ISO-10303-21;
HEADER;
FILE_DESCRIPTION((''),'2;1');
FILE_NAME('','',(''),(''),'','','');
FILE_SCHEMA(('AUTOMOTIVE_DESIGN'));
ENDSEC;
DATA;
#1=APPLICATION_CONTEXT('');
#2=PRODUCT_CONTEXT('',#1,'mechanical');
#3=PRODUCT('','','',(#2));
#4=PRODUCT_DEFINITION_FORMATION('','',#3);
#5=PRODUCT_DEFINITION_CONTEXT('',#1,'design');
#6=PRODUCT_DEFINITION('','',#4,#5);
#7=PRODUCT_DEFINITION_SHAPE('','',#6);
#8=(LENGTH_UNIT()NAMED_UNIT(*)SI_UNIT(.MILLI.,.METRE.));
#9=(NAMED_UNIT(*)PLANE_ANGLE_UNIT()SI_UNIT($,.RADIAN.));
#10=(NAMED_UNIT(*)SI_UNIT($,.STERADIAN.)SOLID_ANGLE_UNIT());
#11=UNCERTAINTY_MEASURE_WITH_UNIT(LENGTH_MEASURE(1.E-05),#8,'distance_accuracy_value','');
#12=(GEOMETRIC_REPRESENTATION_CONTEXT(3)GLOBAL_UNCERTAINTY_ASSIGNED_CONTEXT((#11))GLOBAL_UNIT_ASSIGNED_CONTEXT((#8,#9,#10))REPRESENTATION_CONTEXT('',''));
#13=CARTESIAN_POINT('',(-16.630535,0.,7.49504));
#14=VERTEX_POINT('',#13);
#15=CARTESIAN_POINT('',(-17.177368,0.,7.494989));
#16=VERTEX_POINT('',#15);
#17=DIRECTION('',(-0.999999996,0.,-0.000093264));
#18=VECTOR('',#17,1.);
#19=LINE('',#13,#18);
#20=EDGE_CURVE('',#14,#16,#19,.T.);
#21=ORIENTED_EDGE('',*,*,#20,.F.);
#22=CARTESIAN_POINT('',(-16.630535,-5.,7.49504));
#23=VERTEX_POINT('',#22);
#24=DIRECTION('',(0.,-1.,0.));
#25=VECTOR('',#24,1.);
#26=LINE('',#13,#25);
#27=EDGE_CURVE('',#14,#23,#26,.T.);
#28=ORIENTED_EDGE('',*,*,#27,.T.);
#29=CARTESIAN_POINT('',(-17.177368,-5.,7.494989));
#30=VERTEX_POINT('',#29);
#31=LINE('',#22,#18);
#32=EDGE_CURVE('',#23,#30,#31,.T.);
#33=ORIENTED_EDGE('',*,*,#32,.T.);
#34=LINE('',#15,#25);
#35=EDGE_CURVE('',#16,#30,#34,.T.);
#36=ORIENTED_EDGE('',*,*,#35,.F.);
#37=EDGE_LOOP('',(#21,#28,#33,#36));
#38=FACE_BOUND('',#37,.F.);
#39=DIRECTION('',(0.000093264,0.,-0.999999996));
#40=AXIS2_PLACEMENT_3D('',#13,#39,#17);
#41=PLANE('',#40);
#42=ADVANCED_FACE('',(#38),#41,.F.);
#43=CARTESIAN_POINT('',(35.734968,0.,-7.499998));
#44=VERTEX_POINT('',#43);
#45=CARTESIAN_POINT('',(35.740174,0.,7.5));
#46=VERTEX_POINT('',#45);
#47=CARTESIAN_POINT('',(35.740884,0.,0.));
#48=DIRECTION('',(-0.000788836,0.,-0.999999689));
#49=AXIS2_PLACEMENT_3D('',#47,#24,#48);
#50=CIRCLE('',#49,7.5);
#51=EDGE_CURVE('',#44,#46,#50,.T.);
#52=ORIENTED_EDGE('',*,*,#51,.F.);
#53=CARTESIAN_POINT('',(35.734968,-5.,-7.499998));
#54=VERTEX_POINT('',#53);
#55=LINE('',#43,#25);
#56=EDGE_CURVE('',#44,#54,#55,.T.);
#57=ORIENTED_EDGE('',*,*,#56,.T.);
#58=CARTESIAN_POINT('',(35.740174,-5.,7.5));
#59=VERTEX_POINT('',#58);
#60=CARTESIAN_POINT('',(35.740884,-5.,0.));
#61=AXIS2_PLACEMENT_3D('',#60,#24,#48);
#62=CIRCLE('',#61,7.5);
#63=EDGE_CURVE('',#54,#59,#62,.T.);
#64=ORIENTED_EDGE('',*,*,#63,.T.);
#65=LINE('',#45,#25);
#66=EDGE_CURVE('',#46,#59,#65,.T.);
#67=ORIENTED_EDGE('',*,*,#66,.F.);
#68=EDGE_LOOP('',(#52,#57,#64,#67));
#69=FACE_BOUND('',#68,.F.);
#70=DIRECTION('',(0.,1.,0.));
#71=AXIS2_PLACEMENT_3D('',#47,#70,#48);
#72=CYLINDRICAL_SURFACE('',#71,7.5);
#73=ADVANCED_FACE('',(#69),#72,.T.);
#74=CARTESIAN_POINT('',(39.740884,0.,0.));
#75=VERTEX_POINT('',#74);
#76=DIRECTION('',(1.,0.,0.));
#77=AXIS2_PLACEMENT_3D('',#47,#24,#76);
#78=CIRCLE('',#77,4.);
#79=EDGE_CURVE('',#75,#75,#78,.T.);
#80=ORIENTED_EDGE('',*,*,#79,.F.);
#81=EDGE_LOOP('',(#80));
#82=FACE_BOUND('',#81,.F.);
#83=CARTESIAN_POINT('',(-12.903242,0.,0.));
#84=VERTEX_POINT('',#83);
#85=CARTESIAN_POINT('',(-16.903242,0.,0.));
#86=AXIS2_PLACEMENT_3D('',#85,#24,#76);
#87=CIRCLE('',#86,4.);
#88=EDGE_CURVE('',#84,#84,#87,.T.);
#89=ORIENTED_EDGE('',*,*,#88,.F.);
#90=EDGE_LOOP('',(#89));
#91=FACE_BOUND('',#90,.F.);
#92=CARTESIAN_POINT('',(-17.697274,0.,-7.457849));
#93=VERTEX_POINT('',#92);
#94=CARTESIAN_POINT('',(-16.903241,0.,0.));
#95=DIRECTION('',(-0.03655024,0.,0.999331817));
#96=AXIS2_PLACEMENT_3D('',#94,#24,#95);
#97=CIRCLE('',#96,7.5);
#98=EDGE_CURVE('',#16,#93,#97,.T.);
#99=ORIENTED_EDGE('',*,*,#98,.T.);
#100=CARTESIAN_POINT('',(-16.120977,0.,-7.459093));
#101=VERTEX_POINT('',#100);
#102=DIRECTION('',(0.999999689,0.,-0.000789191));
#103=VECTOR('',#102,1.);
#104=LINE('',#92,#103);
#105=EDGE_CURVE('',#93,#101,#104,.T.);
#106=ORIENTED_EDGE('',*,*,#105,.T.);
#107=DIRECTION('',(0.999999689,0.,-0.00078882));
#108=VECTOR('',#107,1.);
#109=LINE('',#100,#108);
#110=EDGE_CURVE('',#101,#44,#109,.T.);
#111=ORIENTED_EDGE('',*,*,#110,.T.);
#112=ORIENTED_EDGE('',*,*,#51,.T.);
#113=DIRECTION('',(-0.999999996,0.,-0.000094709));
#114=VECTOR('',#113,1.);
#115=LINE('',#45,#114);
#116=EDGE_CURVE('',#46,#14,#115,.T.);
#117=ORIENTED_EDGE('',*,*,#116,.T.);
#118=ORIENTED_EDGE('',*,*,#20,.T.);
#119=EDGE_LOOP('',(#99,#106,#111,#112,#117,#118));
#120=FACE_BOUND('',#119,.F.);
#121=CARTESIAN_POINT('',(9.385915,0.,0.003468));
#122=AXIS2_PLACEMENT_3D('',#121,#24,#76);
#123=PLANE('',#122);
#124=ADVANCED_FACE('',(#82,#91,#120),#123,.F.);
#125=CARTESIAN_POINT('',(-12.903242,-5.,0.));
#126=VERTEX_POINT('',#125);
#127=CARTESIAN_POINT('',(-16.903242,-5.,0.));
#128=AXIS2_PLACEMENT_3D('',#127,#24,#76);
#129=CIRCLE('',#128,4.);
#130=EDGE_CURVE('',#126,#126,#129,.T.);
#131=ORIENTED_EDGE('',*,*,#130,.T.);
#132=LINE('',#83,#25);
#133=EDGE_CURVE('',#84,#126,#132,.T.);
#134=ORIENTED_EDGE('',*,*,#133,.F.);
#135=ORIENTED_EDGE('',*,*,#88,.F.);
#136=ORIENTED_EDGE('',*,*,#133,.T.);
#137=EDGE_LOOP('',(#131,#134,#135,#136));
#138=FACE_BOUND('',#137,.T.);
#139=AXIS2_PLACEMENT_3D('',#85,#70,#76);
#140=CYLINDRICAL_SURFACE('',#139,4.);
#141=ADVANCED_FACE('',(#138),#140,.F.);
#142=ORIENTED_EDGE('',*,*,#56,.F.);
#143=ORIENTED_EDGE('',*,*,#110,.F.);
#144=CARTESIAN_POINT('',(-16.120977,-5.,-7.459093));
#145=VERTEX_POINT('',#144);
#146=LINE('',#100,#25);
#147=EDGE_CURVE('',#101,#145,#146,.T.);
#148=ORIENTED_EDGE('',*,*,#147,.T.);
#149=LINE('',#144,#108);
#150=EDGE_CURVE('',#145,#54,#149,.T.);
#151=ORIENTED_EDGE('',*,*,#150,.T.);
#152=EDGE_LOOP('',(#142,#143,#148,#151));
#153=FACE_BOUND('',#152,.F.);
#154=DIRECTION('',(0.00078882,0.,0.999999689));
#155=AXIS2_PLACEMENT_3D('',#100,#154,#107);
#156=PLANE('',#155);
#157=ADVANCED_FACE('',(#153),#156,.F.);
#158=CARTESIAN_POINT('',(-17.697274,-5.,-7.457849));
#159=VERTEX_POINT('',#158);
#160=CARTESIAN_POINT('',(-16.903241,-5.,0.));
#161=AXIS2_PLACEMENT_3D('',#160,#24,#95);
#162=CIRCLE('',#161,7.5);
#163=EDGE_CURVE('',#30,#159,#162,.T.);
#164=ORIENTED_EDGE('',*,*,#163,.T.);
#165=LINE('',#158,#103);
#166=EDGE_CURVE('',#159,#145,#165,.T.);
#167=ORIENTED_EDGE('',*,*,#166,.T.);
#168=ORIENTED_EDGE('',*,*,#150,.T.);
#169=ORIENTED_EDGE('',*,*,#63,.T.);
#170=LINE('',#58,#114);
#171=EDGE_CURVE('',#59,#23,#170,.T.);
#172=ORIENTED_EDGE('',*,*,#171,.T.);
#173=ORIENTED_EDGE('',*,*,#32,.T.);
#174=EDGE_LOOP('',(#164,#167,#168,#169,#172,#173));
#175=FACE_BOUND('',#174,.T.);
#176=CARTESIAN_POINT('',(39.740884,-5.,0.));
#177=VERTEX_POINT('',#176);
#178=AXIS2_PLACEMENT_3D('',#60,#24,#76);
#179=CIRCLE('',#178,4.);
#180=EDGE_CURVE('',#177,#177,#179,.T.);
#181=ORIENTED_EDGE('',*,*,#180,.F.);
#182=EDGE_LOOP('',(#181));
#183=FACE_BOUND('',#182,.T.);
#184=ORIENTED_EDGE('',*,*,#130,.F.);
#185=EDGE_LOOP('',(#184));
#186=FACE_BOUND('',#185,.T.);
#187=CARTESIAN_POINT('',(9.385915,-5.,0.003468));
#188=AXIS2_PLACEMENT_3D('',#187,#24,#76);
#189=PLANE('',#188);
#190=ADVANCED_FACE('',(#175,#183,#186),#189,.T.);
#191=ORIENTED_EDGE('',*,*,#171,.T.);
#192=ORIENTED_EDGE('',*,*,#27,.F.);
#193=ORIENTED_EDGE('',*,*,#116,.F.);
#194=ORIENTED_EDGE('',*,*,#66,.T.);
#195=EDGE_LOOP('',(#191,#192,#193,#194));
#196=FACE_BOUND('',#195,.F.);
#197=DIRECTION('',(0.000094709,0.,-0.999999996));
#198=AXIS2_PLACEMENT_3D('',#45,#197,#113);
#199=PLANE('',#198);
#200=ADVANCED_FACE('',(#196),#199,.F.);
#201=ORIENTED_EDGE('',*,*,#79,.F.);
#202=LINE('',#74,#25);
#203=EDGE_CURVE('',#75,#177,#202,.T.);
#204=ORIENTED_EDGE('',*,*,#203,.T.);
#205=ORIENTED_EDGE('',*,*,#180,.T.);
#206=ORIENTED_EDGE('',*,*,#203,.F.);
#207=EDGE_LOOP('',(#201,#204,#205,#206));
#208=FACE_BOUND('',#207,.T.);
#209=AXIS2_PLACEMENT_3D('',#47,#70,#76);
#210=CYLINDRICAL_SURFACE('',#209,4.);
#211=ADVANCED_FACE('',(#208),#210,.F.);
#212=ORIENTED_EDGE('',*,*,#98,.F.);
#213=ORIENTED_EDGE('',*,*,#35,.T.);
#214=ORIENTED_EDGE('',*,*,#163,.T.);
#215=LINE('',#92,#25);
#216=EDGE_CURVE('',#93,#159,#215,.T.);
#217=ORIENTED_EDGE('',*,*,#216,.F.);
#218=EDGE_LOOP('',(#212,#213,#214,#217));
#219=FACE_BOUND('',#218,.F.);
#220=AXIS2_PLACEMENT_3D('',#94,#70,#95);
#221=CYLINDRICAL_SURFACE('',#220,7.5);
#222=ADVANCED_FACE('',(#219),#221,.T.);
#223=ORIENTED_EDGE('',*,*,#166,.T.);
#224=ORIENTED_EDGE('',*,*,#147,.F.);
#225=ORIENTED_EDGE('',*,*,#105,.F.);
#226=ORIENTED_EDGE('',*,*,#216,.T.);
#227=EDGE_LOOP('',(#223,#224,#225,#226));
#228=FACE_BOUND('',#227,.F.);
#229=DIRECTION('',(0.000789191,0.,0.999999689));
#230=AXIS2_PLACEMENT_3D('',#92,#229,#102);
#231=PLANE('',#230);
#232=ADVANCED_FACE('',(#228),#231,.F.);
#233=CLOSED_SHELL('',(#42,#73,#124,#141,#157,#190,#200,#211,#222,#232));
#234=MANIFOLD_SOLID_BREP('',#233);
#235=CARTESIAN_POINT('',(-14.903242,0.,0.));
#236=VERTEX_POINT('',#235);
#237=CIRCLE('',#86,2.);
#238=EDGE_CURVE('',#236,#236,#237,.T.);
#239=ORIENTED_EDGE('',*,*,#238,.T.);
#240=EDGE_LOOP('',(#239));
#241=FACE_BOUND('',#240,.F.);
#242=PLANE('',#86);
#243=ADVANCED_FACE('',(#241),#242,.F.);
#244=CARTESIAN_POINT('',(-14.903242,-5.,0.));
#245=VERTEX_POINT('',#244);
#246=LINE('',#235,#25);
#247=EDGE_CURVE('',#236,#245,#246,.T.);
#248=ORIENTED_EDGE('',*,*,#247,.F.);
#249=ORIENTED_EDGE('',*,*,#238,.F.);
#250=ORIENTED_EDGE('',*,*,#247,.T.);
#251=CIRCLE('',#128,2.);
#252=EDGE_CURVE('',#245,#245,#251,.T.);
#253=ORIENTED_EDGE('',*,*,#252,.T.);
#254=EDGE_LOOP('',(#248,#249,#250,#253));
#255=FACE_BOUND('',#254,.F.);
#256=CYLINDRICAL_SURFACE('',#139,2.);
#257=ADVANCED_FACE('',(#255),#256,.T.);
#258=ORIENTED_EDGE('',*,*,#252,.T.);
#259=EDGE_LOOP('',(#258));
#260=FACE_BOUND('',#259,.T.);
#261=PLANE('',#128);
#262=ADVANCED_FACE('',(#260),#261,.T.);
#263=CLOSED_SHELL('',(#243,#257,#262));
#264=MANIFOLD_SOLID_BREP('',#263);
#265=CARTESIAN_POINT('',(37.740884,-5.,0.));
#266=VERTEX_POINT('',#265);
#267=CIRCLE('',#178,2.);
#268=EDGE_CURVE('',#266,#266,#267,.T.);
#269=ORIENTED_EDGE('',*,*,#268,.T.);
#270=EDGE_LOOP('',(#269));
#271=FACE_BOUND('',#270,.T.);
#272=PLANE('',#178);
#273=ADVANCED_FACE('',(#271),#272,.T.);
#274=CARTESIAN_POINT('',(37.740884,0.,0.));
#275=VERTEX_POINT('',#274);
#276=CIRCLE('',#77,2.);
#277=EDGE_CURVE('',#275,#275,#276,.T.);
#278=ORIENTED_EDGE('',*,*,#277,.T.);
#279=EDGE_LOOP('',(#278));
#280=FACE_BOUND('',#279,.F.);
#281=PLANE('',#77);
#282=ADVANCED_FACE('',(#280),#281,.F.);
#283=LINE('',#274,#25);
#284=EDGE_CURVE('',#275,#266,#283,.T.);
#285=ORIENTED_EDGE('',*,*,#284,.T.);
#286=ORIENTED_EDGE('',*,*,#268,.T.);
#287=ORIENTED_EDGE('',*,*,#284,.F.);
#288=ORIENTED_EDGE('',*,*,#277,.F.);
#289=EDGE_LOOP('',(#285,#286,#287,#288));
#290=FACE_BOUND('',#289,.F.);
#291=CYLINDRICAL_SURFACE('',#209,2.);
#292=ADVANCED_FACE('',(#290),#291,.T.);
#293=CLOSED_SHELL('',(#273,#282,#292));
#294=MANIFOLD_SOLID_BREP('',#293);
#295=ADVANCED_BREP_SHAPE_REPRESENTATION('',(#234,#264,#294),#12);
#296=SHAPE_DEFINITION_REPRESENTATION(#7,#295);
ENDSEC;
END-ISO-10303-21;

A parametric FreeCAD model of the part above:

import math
import FreeCAD as App
import Part
import Sketcher
Q = App.Units.Quantity

doc = App.newDocument("Part")
body = doc.addObject("PartDesign::Body", "Body")
body.AllowCompound = True

sketch1 = body.newObject("Sketcher::SketchObject", "Sketch")
sketch1.AttachmentSupport = (doc.getObject("XZ_Plane"), [""])
sketch1.MapMode = "FlatFace"
sketch1.addGeometry([
    Part.LineSegment(App.Vector(35.7, 7.5, 0), App.Vector(-16.6, 7.5, 0)),
    Part.LineSegment(App.Vector(-16.6, 7.5, 0), App.Vector(-17.2, 7.5, 0)),
    Part.ArcOfCircle(Part.Circle(App.Vector(-16.9, 0, 0), App.Vector(0, 0, 1), 7.5), math.radians(92), math.radians(264)),
    Part.LineSegment(App.Vector(-17.7, -7.5, 0), App.Vector(-16.1, -7.5, 0)),
    Part.LineSegment(App.Vector(-16.1, -7.5, 0), App.Vector(35.7, -7.5, 0)),
    Part.ArcOfCircle(Part.Circle(App.Vector(35.7, 0, 0), App.Vector(0, 0, 1), 7.5), math.radians(-90), math.radians(90)),
    Part.Circle(App.Vector(-16.9, 0, 0), App.Vector(0, 0, 1), 4),
    Part.Circle(App.Vector(35.7, 0, 0), App.Vector(0, 0, 1), 4),
    Part.Circle(App.Vector(35.7, 0, 0), App.Vector(0, 0, 1), 2),
    Part.Circle(App.Vector(-16.9, 0, 0), App.Vector(0, 0, 1), 2),
], False)
sketch1.addConstraint([
    Sketcher.Constraint("Coincident", 0, 2, 1, 1),
    Sketcher.Constraint("Coincident", 1, 2, 2, 1),
    Sketcher.Constraint("Coincident", 2, 2, 3, 1),
    Sketcher.Constraint("Coincident", 3, 2, 4, 1),
    Sketcher.Constraint("Tangent", 4, 2, 5, 1),
    Sketcher.Constraint("Tangent", 5, 2, 0, 1),
    Sketcher.Constraint("Coincident", 6, 3, 2, 3),
    Sketcher.Constraint("Coincident", 7, 3, 5, 3),
    Sketcher.Constraint("Coincident", 8, 3, 5, 3),
    Sketcher.Constraint("Coincident", 9, 3, 2, 3),
    Sketcher.Constraint("Equal", 2, 5),
    Sketcher.Constraint("Equal", 6, 7),
    Sketcher.Constraint("Equal", 8, 9),
    Sketcher.Constraint("PointOnObject", 2, 3, -1),
    Sketcher.Constraint("PointOnObject", 5, 3, -1),
    Sketcher.Constraint("Parallel", 0, 1),
    Sketcher.Constraint("Parallel", 3, 4),
    Sketcher.Constraint("Diameter", 6, Q("8 mm")),
    Sketcher.Constraint("Diameter", 8, Q("4 mm")),
    Sketcher.Constraint("Radius", 2, Q("7.5 mm")),
    Sketcher.Constraint("Distance", 0, Q("52.370709 mm")),
    Sketcher.Constraint("Distance", 4, Q("51.855961 mm")),
    Sketcher.Constraint("DistanceX", 2, 3, -1, 1, Q("16.903241 mm")),
    Sketcher.Constraint("DistanceY", -1, 1, 0, 2, Q("7.49504 mm")),
    Sketcher.Constraint("DistanceY", 2, 2, -1, 1, Q("7.457849 mm")),
    Sketcher.Constraint("DistanceX", -1, 1, 4, 2, Q("35.734968 mm")),
])
pad1 = body.newObject("PartDesign::Pad", "Pad")
pad1.Profile = sketch1
pad1.Length = 5

doc.recompute()
